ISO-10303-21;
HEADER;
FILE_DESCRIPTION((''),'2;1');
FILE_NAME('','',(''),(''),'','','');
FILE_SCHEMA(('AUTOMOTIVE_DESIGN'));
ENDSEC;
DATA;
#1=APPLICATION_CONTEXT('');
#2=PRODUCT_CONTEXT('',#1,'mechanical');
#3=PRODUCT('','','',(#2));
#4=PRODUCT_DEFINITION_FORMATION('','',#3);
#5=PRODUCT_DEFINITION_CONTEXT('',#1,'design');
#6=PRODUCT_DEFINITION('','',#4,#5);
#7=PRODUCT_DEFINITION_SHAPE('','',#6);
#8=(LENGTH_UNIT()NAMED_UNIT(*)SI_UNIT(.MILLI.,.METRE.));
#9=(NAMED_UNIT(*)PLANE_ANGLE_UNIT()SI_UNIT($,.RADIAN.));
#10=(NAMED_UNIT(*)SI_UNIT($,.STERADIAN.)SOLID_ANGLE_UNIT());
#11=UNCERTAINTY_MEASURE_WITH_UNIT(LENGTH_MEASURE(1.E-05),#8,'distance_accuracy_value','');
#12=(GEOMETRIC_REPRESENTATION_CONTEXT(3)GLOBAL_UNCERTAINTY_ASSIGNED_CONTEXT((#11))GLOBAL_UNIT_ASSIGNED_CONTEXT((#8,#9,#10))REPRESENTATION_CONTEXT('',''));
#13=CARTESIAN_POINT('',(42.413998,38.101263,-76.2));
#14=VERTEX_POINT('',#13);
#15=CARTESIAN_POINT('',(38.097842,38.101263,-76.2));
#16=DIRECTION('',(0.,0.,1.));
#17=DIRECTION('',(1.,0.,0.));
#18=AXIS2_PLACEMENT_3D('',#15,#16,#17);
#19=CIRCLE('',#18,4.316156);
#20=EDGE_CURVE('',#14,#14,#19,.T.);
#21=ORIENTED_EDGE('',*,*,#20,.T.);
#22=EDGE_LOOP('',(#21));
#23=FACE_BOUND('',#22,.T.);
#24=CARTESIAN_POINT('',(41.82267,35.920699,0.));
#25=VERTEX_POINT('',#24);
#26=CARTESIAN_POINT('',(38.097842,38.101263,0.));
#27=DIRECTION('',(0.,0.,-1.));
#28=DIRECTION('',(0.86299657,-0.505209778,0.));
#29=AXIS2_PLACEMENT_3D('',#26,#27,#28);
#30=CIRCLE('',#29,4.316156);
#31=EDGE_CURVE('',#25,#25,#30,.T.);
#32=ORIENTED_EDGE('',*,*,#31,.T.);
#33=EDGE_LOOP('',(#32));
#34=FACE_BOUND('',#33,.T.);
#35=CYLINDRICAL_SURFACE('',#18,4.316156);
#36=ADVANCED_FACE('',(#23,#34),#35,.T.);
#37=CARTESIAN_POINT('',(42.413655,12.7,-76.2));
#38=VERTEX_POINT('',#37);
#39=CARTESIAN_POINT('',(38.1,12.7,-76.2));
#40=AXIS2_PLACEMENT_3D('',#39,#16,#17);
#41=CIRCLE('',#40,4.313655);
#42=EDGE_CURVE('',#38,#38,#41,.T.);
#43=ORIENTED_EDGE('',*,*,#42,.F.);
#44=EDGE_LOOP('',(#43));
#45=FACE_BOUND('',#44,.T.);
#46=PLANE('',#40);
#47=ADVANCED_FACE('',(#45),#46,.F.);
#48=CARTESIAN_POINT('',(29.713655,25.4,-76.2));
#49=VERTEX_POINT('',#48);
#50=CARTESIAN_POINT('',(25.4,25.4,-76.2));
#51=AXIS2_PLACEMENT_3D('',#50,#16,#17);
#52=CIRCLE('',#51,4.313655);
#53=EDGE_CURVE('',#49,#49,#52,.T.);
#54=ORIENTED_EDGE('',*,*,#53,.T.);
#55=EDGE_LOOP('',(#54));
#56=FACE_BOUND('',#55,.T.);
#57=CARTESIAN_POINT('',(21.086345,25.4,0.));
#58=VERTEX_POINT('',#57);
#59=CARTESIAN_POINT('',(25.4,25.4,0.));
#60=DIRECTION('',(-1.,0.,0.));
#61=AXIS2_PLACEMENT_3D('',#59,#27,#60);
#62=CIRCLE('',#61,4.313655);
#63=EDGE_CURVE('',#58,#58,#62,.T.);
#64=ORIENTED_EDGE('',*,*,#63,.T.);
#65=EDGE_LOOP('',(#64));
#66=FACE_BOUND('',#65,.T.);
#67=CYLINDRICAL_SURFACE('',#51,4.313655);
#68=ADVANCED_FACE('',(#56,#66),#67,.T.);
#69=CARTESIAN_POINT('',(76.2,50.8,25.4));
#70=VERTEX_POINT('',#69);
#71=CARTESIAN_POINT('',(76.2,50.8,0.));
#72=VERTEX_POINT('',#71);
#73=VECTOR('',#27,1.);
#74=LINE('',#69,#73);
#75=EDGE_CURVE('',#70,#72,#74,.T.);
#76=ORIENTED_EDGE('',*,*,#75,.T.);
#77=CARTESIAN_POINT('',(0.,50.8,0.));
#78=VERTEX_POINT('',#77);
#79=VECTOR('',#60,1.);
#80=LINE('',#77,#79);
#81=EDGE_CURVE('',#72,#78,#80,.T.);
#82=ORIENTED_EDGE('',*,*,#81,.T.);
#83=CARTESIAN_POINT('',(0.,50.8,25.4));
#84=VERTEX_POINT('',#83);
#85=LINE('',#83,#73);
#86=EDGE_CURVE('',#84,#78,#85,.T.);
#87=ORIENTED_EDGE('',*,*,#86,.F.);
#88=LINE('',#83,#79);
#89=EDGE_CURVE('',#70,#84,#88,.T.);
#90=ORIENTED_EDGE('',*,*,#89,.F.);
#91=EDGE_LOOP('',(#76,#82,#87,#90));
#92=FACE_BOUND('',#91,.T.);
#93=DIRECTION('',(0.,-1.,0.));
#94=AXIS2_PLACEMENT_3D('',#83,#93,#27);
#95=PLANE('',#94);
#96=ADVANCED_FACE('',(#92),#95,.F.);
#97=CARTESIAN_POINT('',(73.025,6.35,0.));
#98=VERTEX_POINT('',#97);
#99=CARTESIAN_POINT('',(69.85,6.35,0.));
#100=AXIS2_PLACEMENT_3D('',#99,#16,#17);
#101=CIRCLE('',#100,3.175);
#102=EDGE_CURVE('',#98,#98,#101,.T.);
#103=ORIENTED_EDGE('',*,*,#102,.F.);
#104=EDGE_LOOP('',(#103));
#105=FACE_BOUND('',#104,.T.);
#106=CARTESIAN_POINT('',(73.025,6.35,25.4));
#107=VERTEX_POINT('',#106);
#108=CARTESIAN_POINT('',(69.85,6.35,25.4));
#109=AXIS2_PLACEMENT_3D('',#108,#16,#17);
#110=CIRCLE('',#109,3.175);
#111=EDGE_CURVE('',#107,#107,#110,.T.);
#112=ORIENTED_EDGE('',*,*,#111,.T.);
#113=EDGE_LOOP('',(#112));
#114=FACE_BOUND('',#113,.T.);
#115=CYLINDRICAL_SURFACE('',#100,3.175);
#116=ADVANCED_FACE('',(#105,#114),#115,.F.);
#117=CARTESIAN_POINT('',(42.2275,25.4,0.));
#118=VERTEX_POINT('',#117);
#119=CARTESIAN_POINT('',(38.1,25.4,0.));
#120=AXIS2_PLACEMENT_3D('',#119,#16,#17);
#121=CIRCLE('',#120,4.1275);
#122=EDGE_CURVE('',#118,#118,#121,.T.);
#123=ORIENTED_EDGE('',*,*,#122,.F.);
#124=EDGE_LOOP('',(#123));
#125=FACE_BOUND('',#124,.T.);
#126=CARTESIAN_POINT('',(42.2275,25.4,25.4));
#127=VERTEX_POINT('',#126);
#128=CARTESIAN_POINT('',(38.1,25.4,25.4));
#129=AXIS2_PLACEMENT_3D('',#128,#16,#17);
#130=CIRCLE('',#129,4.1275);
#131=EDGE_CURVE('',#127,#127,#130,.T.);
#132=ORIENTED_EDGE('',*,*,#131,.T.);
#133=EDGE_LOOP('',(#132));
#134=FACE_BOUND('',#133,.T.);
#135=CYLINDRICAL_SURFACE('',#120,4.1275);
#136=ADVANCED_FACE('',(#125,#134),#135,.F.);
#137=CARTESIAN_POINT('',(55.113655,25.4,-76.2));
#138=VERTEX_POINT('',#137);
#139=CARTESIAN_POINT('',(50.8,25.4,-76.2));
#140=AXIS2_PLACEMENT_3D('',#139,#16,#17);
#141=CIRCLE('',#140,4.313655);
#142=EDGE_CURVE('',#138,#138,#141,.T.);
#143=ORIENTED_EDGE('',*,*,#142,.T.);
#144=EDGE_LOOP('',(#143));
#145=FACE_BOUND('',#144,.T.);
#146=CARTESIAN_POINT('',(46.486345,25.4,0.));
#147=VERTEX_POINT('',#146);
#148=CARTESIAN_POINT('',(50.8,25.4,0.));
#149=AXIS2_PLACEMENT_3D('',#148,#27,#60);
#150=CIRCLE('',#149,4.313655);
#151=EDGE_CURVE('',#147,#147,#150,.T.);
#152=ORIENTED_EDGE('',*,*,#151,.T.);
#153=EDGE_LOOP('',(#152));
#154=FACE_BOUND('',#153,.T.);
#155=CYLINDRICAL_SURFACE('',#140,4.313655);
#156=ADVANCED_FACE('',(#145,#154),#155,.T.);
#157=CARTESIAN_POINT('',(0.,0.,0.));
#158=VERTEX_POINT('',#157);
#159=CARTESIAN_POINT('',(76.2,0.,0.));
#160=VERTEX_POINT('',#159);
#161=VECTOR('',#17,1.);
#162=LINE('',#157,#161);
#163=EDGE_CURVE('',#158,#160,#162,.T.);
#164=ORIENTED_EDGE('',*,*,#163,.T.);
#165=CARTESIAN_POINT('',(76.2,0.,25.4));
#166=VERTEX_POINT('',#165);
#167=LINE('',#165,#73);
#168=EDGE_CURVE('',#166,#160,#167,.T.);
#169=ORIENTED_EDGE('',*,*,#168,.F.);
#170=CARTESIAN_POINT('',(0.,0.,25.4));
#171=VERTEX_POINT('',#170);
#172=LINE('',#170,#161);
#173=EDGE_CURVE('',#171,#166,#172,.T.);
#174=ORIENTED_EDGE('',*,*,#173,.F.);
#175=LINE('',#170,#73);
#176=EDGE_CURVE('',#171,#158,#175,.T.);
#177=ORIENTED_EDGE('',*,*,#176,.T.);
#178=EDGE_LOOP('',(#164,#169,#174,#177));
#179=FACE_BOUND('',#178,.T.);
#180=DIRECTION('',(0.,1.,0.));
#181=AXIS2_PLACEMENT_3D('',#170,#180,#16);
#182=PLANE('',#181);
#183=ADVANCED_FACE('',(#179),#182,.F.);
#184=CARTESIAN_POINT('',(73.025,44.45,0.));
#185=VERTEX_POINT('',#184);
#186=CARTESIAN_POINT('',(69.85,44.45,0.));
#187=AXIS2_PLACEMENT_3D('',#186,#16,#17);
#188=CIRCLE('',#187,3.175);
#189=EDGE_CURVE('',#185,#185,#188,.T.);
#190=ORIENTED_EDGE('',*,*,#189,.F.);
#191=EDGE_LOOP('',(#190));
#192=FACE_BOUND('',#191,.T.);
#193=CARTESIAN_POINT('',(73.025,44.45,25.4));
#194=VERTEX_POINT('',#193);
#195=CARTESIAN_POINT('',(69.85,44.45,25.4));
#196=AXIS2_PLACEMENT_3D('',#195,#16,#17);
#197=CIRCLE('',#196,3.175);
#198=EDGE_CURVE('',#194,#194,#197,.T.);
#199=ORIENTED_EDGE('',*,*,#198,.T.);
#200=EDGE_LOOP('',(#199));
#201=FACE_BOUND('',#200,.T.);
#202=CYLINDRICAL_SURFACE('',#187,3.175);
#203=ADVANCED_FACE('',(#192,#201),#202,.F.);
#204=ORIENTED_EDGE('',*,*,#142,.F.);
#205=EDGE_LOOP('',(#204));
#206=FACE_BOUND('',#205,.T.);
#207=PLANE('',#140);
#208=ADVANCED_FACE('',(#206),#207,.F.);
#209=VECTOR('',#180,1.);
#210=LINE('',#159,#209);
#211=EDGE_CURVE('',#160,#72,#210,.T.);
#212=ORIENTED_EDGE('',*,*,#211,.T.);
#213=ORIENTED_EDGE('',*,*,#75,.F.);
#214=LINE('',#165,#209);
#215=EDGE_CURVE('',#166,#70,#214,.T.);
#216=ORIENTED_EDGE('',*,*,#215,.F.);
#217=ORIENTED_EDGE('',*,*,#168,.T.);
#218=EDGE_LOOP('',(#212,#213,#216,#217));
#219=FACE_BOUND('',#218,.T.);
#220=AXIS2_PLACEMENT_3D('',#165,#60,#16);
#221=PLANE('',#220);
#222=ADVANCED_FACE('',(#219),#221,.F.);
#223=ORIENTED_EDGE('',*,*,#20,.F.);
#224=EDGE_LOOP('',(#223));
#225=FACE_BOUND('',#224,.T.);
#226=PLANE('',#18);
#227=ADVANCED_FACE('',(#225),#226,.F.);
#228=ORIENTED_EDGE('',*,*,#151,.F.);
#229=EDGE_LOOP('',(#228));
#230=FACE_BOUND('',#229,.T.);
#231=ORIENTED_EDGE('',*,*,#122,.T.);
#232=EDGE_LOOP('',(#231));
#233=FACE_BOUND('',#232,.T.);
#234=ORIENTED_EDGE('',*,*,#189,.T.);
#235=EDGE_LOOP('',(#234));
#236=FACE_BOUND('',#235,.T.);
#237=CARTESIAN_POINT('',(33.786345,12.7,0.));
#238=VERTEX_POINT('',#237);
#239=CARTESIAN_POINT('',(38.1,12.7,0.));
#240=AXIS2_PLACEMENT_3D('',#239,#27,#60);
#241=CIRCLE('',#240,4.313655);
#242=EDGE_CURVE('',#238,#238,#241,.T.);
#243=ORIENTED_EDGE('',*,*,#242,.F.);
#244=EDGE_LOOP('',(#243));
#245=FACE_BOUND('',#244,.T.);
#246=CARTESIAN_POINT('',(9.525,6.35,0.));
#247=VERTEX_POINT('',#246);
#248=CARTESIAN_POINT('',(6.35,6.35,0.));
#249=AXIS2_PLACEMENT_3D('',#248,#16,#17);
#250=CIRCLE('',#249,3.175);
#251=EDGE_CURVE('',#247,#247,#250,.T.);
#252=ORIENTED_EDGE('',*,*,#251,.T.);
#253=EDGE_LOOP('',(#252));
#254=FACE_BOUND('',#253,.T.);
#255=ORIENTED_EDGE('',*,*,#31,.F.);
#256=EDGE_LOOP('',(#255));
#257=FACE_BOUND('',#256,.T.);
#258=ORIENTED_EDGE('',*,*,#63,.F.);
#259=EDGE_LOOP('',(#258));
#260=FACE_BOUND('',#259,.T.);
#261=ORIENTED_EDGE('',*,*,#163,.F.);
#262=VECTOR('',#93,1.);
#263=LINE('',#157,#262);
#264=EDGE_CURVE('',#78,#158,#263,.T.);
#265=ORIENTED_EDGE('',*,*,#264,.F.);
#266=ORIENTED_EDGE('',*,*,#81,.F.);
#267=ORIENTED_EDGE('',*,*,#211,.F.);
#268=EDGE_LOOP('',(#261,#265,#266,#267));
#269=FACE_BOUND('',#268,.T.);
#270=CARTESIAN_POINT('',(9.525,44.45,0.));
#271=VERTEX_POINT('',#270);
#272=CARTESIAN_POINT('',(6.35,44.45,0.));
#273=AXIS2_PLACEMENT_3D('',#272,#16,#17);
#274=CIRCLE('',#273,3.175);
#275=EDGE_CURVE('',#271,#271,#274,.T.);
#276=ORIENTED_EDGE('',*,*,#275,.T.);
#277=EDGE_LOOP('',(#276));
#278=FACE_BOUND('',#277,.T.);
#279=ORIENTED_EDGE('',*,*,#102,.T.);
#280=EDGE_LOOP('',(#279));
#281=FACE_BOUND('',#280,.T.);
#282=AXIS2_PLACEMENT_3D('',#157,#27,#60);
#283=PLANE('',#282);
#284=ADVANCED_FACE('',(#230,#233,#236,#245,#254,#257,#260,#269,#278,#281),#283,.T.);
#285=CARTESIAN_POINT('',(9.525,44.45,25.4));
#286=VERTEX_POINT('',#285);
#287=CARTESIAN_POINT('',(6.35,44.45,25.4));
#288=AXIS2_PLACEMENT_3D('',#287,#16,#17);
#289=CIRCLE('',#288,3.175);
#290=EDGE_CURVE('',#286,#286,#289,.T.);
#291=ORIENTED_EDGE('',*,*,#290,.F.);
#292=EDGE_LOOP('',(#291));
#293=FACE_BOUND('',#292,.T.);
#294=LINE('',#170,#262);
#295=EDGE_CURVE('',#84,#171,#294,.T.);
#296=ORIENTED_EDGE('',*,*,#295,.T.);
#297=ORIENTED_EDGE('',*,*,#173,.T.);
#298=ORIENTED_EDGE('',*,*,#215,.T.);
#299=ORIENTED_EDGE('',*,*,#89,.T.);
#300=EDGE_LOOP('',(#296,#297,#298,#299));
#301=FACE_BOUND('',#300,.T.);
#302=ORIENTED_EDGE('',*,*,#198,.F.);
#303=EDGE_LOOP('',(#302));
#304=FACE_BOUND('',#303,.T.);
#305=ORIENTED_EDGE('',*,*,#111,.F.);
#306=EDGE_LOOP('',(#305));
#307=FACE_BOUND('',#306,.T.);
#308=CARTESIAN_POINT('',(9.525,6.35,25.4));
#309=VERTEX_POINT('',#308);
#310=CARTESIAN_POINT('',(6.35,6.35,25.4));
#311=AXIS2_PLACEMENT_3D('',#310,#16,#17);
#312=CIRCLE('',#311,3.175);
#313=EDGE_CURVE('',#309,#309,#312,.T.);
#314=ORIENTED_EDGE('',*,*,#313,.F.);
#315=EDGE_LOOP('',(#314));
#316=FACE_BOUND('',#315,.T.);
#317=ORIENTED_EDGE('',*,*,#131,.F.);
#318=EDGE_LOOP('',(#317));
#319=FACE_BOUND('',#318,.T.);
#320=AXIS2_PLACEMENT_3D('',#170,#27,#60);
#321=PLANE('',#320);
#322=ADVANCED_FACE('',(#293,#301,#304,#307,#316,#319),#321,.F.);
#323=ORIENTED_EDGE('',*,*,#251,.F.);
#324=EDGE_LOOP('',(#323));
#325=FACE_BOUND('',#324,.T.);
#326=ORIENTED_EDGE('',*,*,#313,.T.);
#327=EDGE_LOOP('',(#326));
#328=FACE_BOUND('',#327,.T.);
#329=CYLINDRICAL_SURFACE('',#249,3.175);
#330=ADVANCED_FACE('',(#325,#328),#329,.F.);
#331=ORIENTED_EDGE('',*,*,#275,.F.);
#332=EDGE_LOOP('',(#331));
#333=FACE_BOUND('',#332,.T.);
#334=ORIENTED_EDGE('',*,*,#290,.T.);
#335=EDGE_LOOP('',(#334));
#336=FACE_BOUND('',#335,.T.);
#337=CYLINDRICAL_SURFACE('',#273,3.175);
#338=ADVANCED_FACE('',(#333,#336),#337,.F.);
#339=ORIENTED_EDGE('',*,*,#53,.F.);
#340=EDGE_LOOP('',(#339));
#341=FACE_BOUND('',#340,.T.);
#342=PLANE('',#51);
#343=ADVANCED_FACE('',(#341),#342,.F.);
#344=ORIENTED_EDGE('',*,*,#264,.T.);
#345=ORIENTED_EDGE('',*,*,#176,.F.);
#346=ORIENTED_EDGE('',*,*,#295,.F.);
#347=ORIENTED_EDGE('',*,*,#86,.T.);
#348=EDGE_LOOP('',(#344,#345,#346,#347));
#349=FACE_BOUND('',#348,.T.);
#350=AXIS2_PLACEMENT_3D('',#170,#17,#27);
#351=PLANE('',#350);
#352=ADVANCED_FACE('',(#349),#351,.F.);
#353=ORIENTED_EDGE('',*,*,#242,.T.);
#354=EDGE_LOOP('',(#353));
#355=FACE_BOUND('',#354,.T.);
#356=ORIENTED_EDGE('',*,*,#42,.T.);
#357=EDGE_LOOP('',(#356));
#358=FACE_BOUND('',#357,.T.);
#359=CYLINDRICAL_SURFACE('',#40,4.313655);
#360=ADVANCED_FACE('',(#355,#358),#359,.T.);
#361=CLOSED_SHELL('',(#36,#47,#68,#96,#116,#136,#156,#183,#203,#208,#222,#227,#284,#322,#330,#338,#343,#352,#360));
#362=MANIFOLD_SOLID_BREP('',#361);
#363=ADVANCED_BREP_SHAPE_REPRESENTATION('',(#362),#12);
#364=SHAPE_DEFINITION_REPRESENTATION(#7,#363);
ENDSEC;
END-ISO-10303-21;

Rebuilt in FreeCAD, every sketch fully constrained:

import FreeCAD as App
import Part
import Sketcher
Q = App.Units.Quantity


def add_polygon(sketch, points):
    """Adds a closed chain of lines whose ends are joined by coincident constraints."""
    first, n = sketch.GeometryCount, len(points)
    for a, b in zip(points, points[1:] + points[:1]):
        sketch.addGeometry(Part.LineSegment(App.Vector(*a, 0), App.Vector(*b, 0)), False)
    for i in range(n):
        sketch.addConstraint(Sketcher.Constraint("Coincident", first + i, 2, first + (i + 1) % n, 1))

doc = App.newDocument("Part")
body = doc.addObject("PartDesign::Body", "Body")

# Sketch on XY plane
sketch1 = body.newObject("Sketcher::SketchObject", "Sketch")
sketch1.AttachmentSupport = (doc.getObject("XY_Plane"), [""])
sketch1.MapMode = "FlatFace"
add_polygon(sketch1, [(0, 50.8), (0, 0), (76.2, 0), (76.2, 50.8)])  # lines 0-3
sketch1.addGeometry(Part.Circle(App.Vector(25.4, 25.4, 0), App.Vector(0, 0, 1), 4.313655), False)  # 4
sketch1.addGeometry(Part.Circle(App.Vector(38.1, 12.7, 0), App.Vector(0, 0, 1), 4.313655), False)  # 5
sketch1.addGeometry(Part.Circle(App.Vector(50.8, 25.4, 0), App.Vector(0, 0, 1), 4.313655), False)  # 6
sketch1.addGeometry(Part.Circle(App.Vector(38.1, 38.1, 0), App.Vector(0, 0, 1), 4.313655), False)  # 7
sketch1.addConstraint([
    Sketcher.Constraint("Vertical", 0),
    Sketcher.Constraint("Horizontal", 1),
    Sketcher.Constraint("Vertical", 2),
    Sketcher.Constraint("Horizontal", 3),
    Sketcher.Constraint("Coincident", 0, 2, -1, 1),
    Sketcher.Constraint("Equal", 4, 5),
    Sketcher.Constraint("Equal", 5, 6),
    Sketcher.Constraint("Equal", 6, 7),
    Sketcher.Constraint("Horizontal", 4, 3, 6, 3),
    Sketcher.Constraint("Vertical", 5, 3, 7, 3),
    Sketcher.Constraint("DistanceX", 1, 1, 1, 2, Q("3 in")),
    Sketcher.Constraint("DistanceY", 0, 2, 0, 1, Q("2 in")),
    Sketcher.Constraint("DistanceX", -1, 1, 4, 3, Q("1 in")),
    Sketcher.Constraint("DistanceY", -1, 1, 4, 3, Q("1 in")),
    Sketcher.Constraint("DistanceX", -1, 1, 6, 3, Q("2 in")),
    Sketcher.Constraint("DistanceY", 5, 3, 7, 3, Q("1 in")),
    Sketcher.Constraint("DistanceX", -1, 1, 5, 3, Q("1.5 in")),
    Sketcher.Constraint("DistanceY", -1, 1, 5, 3, Q("0.5 in")),
    Sketcher.Constraint("Diameter", 4, 8.627311),
])
pad1 = body.newObject("PartDesign::Pad", "Pad")
pad1.Profile = sketch1
pad1.Length = Q("1 in")

# Sketch on XY plane
sketch2 = body.newObject("Sketcher::SketchObject", "Sketch001")
sketch2.AttachmentSupport = (doc.getObject("XY_Plane"), [""])
sketch2.MapMode = "FlatFace"
sketch2.AttachmentOffset = App.Placement(App.Vector(0, 0, 1 * 25.4), App.Rotation())
sketch2.addGeometry([
    Part.Circle(App.Vector(38.1, 25.4, 0), App.Vector(0, 0, 1), 4.1275),  # 0
    Part.Circle(App.Vector(6.35, 44.45, 0), App.Vector(0, 0, 1), 3.175),  # 1
    Part.Circle(App.Vector(69.85, 44.45, 0), App.Vector(0, 0, 1), 3.175),  # 2
    Part.Circle(App.Vector(6.35, 6.35, 0), App.Vector(0, 0, 1), 3.175),  # 3
    Part.Circle(App.Vector(69.85, 6.35, 0), App.Vector(0, 0, 1), 3.175),  # 4
], False)
sketch2.addConstraint([
    Sketcher.Constraint("Equal", 1, 2),
    Sketcher.Constraint("Equal", 2, 3),
    Sketcher.Constraint("Equal", 3, 4),
    Sketcher.Constraint("Horizontal", 1, 3, 2, 3),
    Sketcher.Constraint("Horizontal", 3, 3, 4, 3),
    Sketcher.Constraint("Vertical", 1, 3, 3, 3),
    Sketcher.Constraint("Vertical", 2, 3, 4, 3),
    Sketcher.Constraint("Diameter", 1, Q("0.25 in")),
    Sketcher.Constraint("Diameter", 0, Q("0.325 in")),
    Sketcher.Constraint("DistanceY", -1, 1, 0, 3, Q("1 in")),
    Sketcher.Constraint("DistanceX", -1, 1, 0, 3, Q("1.5 in")),
    Sketcher.Constraint("DistanceX", 1, 3, 2, 3, Q("2.5 in")),
    Sketcher.Constraint("DistanceY", 3, 3, 1, 3, Q("1.5 in")),
    Sketcher.Constraint("DistanceX", -1, 1, 1, 3, Q("0.25 in")),
    Sketcher.Constraint("DistanceY", -1, 1, 1, 3, Q("1.75 in")),
])
pocket1 = body.newObject("PartDesign::Pocket", "Pocket")
pocket1.Profile = sketch2
pocket1.Length = Q("1 in")

# Sketch on XY plane
sketch3 = body.newObject("Sketcher::SketchObject", "Sketch002")
sketch3.AttachmentSupport = (doc.getObject("XY_Plane"), [""])
sketch3.MapMode = "FlatFace"
sketch3.AttachmentOffset = App.Placement(App.Vector(0, 0, -3 * 25.4), App.Rotation())
sketch3.addGeometry(Part.Circle(App.Vector(25.4, 25.4, 0), App.Vector(0, 0, 1), 4.313655), False)
sketch3.addConstraint([
    Sketcher.Constraint("DistanceX", -1, 1, 0, 3, Q("1 in")),
    Sketcher.Constraint("DistanceY", -1, 1, 0, 3, Q("1 in")),
    Sketcher.Constraint("Diameter", 0, 8.627311),
])
pad2 = body.newObject("PartDesign::Pad", "Pad001")
pad2.Profile = sketch3
pad2.Length = Q("4 in")

# Sketch on XY plane
sketch4 = body.newObject("Sketcher::SketchObject", "Sketch003")
sketch4.AttachmentSupport = (doc.getObject("XY_Plane"), [""])
sketch4.MapMode = "FlatFace"
sketch4.AttachmentOffset = App.Placement(App.Vector(0, 0, -3 * 25.4), App.Rotation())
sketch4.addGeometry(Part.Circle(App.Vector(50.8, 25.4, 0), App.Vector(0, 0, 1), 4.313655), False)
sketch4.addConstraint([
    Sketcher.Constraint("DistanceX", -1, 1, 0, 3, Q("2 in")),
    Sketcher.Constraint("DistanceY", -1, 1, 0, 3, Q("1 in")),
    Sketcher.Constraint("Diameter", 0, 8.627311),
])
pad3 = body.newObject("PartDesign::Pad", "Pad002")
pad3.Profile = sketch4
pad3.Length = Q("4 in")

# Sketch on XY plane
sketch5 = body.newObject("Sketcher::SketchObject", "Sketch004")
sketch5.AttachmentSupport = (doc.getObject("XY_Plane"), [""])
sketch5.MapMode = "FlatFace"
sketch5.AttachmentOffset = App.Placement(App.Vector(0, 0, 1 * 25.4), App.Rotation())
sketch5.addGeometry(Part.Circle(App.Vector(38.097842, 38.101263, 0), App.Vector(0, 0, 1), 4.316156), False)
sketch5.addConstraint([
    Sketcher.Constraint("Diameter", 0, 8.632312),
    Sketcher.Constraint("DistanceX", -1, 1, 0, 3, 38.097842),
    Sketcher.Constraint("DistanceY", -1, 1, 0, 3, 38.101263),
])
pad4 = body.newObject("PartDesign::Pad", "Pad003")
pad4.Profile = sketch5
pad4.Length = Q("4 in")
pad4.Reversed = True

# Sketch on XY plane
sketch6 = body.newObject("Sketcher::SketchObject", "Sketch005")
sketch6.AttachmentSupport = (doc.getObject("XY_Plane"), [""])
sketch6.MapMode = "FlatFace"
sketch6.AttachmentOffset = App.Placement(App.Vector(0, 0, -3 * 25.4), App.Rotation())
sketch6.addGeometry(Part.Circle(App.Vector(38.1, 12.7, 0), App.Vector(0, 0, 1), 4.313655), False)
sketch6.addConstraint([
    Sketcher.Constraint("DistanceX", -1, 1, 0, 3, Q("1.5 in")),
    Sketcher.Constraint("DistanceY", -1, 1, 0, 3, Q("0.5 in")),
    Sketcher.Constraint("Diameter", 0, 8.627311),
])
pad5 = body.newObject("PartDesign::Pad", "Pad004")
pad5.Profile = sketch6
pad5.Length = Q("4 in")

doc.recompute()
